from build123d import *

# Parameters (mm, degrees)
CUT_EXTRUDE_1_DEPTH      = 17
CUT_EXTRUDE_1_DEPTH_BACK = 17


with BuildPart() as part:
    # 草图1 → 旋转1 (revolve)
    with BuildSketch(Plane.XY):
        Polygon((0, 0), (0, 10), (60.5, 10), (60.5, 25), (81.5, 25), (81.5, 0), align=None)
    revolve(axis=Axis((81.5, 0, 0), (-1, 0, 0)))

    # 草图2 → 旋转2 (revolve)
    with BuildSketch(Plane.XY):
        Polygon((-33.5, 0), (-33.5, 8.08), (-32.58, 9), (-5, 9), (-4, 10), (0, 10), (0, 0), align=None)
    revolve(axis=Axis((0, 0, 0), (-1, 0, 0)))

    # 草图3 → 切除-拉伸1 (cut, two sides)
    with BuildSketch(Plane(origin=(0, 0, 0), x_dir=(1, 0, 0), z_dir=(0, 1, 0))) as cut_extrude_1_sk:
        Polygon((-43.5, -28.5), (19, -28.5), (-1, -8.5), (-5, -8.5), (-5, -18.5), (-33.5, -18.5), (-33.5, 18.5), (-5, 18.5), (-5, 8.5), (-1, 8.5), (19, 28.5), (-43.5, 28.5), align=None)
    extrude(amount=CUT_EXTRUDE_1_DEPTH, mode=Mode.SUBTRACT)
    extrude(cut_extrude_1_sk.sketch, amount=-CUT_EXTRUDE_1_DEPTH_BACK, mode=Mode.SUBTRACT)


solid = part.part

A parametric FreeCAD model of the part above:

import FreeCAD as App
import Part
import Sketcher
Q = App.Units.Quantity


def add_polygon(sketch, points):
    """Adds a closed chain of lines whose ends are joined by coincident constraints."""
    first, n = sketch.GeometryCount, len(points)
    for a, b in zip(points, points[1:] + points[:1]):
        sketch.addGeometry(Part.LineSegment(App.Vector(*a, 0), App.Vector(*b, 0)), False)
    for i in range(n):
        sketch.addConstraint(Sketcher.Constraint("Coincident", first + i, 2, first + (i + 1) % n, 1))

doc = App.newDocument("Part")
body = doc.addObject("PartDesign::Body", "Body")

sketch1 = doc.addObject("Sketcher::SketchObject", "Sketch")
body.addObject(sketch1)
sketch1.AttachmentSupport = (doc.XY_Plane, [""])
sketch1.MapMode = "FlatFace"
add_polygon(sketch1, [(0, 10), (0, 0), (81.5, 0), (81.5, 25), (60.5, 25), (60.5, 10)])
sketch1.addConstraint(Sketcher.Constraint("Vertical", 0))
sketch1.addConstraint(Sketcher.Constraint("Horizontal", 1))
sketch1.addConstraint(Sketcher.Constraint("Vertical", 2))
sketch1.addConstraint(Sketcher.Constraint("Horizontal", 3))
sketch1.addConstraint(Sketcher.Constraint("Vertical", 4))
sketch1.addConstraint(Sketcher.Constraint("Horizontal", 5))
sketch1.addConstraint(Sketcher.Constraint("Coincident", 0, 2, -1, 1))
sketch1.addConstraint(Sketcher.Constraint("DistanceX", 3, 2, 3, 1, 21.0))
sketch1.addConstraint(Sketcher.Constraint("DistanceY", 0, 2, 0, 1, 10.0))
sketch1.addConstraint(Sketcher.Constraint("DistanceY", 2, 1, 2, 2, 25.0))
sketch1.addConstraint(Sketcher.Constraint("DistanceX", 1, 1, 1, 2, 81.5))
revolution = doc.addObject("PartDesign::Revolution", "Revolution")
body.addObject(revolution)
revolution.Profile = sketch1
revolution.ReferenceAxis = (sketch1, ["H_Axis"])
revolution.Angle = 360

sketch2 = doc.addObject("Sketcher::SketchObject", "Sketch001")
body.addObject(sketch2)
sketch2.AttachmentSupport = (doc.XY_Plane, [""])
sketch2.MapMode = "FlatFace"
add_polygon(sketch2, [(-33.5, 8.08), (-33.5, 0), (0, 0), (0, 10), (-4, 10), (-5, 9), (-32.58, 9)])
sketch2.addConstraint(Sketcher.Constraint("Vertical", 0))
sketch2.addConstraint(Sketcher.Constraint("Horizontal", 1))
sketch2.addConstraint(Sketcher.Constraint("Vertical", 2))
sketch2.addConstraint(Sketcher.Constraint("Horizontal", 3))
sketch2.addConstraint(Sketcher.Constraint("Horizontal", 5))
sketch2.addConstraint(Sketcher.Constraint("Coincident", 1, 2, -1, 1))
sketch2.addConstraint(Sketcher.Constraint("Parallel", 4, 6))
sketch2.addConstraint(Sketcher.Constraint("DistanceX", 3, 2, 3, 1, 4.0))
sketch2.addConstraint(Sketcher.Constraint("DistanceY", 2, 1, 2, 2, 10.0))
sketch2.addConstraint(Sketcher.Constraint("Angle", 4, Q("-135 deg")))
sketch2.addConstraint(Sketcher.Constraint("DistanceX", 1, 1, 1, 2, 33.5))
sketch2.addConstraint(Sketcher.Constraint("DistanceX", 4, 2, -1, 1, 5.0))
sketch2.addConstraint(Sketcher.Constraint("DistanceX", 5, 2, 5, 1, 27.58))
revolution2 = doc.addObject("PartDesign::Revolution", "Revolution001")
body.addObject(revolution2)
revolution2.Profile = sketch2
revolution2.ReferenceAxis = (sketch2, ["H_Axis"])
revolution2.Angle = 360

sketch3 = doc.addObject("Sketcher::SketchObject", "Sketch002")
body.addObject(sketch3)
sketch3.AttachmentSupport = (doc.XZ_Plane, [""])
sketch3.MapMode = "FlatFace"
add_polygon(sketch3, [(-43.5, 28.5), (19, 28.5), (-1, 8.5), (-5, 8.5), (-5, 18.5), (-33.5, 18.5), (-33.5, -18.5), (-5, -18.5), (-5, -8.5), (-1, -8.5), (19, -28.5), (-43.5, -28.5)])
sketch3.addConstraint(Sketcher.Constraint("Horizontal", 0))
sketch3.addConstraint(Sketcher.Constraint("Horizontal", 2))
sketch3.addConstraint(Sketcher.Constraint("Vertical", 3))
sketch3.addConstraint(Sketcher.Constraint("Horizontal", 4))
sketch3.addConstraint(Sketcher.Constraint("Vertical", 5))
sketch3.addConstraint(Sketcher.Constraint("Horizontal", 6))
sketch3.addConstraint(Sketcher.Constraint("Vertical", 7))
sketch3.addConstraint(Sketcher.Constraint("Horizontal", 8))
sketch3.addConstraint(Sketcher.Constraint("Horizontal", 10))
sketch3.addConstraint(Sketcher.Constraint("Vertical", 11))
sketch3.addConstraint(Sketcher.Constraint("Symmetric", 3, 2, 6, 2, -1))
sketch3.addConstraint(Sketcher.Constraint("Symmetric", 1, 2, 8, 2, -1))
sketch3.addConstraint(Sketcher.Constraint("Symmetric", 0, 2, 9, 2, -1))
sketch3.addConstraint(Sketcher.Constraint("Perpendicular", 1, 9))
sketch3.addConstraint(Sketcher.Constraint("DistanceX", 2, 2, 2, 1, 4.0))
sketch3.addConstraint(Sketcher.Constraint("DistanceY", 3, 1, 3, 2, 10.0))
sketch3.addConstraint(Sketcher.Constraint("DistanceY", 5, 2, 5, 1, 37.0))
sketch3.addConstraint(Sketcher.Constraint("DistanceY", 11, 1, 11, 2, 57.0))
sketch3.addConstraint(Sketcher.Constraint("DistanceX", 0, 1, 0, 2, 62.5))
sketch3.addConstraint(Sketcher.Constraint("DistanceX", 4, 2, 4, 1, 28.5))
sketch3.addConstraint(Sketcher.Constraint("DistanceX", -1, 1, 0, 2, 19.0))
pocket1 = doc.addObject("PartDesign::Pocket", "Pocket")
body.addObject(pocket1)
pocket1.Profile = sketch3
pocket1.Type = "ThroughAll"
pocket1.Midplane = True

doc.recompute()
